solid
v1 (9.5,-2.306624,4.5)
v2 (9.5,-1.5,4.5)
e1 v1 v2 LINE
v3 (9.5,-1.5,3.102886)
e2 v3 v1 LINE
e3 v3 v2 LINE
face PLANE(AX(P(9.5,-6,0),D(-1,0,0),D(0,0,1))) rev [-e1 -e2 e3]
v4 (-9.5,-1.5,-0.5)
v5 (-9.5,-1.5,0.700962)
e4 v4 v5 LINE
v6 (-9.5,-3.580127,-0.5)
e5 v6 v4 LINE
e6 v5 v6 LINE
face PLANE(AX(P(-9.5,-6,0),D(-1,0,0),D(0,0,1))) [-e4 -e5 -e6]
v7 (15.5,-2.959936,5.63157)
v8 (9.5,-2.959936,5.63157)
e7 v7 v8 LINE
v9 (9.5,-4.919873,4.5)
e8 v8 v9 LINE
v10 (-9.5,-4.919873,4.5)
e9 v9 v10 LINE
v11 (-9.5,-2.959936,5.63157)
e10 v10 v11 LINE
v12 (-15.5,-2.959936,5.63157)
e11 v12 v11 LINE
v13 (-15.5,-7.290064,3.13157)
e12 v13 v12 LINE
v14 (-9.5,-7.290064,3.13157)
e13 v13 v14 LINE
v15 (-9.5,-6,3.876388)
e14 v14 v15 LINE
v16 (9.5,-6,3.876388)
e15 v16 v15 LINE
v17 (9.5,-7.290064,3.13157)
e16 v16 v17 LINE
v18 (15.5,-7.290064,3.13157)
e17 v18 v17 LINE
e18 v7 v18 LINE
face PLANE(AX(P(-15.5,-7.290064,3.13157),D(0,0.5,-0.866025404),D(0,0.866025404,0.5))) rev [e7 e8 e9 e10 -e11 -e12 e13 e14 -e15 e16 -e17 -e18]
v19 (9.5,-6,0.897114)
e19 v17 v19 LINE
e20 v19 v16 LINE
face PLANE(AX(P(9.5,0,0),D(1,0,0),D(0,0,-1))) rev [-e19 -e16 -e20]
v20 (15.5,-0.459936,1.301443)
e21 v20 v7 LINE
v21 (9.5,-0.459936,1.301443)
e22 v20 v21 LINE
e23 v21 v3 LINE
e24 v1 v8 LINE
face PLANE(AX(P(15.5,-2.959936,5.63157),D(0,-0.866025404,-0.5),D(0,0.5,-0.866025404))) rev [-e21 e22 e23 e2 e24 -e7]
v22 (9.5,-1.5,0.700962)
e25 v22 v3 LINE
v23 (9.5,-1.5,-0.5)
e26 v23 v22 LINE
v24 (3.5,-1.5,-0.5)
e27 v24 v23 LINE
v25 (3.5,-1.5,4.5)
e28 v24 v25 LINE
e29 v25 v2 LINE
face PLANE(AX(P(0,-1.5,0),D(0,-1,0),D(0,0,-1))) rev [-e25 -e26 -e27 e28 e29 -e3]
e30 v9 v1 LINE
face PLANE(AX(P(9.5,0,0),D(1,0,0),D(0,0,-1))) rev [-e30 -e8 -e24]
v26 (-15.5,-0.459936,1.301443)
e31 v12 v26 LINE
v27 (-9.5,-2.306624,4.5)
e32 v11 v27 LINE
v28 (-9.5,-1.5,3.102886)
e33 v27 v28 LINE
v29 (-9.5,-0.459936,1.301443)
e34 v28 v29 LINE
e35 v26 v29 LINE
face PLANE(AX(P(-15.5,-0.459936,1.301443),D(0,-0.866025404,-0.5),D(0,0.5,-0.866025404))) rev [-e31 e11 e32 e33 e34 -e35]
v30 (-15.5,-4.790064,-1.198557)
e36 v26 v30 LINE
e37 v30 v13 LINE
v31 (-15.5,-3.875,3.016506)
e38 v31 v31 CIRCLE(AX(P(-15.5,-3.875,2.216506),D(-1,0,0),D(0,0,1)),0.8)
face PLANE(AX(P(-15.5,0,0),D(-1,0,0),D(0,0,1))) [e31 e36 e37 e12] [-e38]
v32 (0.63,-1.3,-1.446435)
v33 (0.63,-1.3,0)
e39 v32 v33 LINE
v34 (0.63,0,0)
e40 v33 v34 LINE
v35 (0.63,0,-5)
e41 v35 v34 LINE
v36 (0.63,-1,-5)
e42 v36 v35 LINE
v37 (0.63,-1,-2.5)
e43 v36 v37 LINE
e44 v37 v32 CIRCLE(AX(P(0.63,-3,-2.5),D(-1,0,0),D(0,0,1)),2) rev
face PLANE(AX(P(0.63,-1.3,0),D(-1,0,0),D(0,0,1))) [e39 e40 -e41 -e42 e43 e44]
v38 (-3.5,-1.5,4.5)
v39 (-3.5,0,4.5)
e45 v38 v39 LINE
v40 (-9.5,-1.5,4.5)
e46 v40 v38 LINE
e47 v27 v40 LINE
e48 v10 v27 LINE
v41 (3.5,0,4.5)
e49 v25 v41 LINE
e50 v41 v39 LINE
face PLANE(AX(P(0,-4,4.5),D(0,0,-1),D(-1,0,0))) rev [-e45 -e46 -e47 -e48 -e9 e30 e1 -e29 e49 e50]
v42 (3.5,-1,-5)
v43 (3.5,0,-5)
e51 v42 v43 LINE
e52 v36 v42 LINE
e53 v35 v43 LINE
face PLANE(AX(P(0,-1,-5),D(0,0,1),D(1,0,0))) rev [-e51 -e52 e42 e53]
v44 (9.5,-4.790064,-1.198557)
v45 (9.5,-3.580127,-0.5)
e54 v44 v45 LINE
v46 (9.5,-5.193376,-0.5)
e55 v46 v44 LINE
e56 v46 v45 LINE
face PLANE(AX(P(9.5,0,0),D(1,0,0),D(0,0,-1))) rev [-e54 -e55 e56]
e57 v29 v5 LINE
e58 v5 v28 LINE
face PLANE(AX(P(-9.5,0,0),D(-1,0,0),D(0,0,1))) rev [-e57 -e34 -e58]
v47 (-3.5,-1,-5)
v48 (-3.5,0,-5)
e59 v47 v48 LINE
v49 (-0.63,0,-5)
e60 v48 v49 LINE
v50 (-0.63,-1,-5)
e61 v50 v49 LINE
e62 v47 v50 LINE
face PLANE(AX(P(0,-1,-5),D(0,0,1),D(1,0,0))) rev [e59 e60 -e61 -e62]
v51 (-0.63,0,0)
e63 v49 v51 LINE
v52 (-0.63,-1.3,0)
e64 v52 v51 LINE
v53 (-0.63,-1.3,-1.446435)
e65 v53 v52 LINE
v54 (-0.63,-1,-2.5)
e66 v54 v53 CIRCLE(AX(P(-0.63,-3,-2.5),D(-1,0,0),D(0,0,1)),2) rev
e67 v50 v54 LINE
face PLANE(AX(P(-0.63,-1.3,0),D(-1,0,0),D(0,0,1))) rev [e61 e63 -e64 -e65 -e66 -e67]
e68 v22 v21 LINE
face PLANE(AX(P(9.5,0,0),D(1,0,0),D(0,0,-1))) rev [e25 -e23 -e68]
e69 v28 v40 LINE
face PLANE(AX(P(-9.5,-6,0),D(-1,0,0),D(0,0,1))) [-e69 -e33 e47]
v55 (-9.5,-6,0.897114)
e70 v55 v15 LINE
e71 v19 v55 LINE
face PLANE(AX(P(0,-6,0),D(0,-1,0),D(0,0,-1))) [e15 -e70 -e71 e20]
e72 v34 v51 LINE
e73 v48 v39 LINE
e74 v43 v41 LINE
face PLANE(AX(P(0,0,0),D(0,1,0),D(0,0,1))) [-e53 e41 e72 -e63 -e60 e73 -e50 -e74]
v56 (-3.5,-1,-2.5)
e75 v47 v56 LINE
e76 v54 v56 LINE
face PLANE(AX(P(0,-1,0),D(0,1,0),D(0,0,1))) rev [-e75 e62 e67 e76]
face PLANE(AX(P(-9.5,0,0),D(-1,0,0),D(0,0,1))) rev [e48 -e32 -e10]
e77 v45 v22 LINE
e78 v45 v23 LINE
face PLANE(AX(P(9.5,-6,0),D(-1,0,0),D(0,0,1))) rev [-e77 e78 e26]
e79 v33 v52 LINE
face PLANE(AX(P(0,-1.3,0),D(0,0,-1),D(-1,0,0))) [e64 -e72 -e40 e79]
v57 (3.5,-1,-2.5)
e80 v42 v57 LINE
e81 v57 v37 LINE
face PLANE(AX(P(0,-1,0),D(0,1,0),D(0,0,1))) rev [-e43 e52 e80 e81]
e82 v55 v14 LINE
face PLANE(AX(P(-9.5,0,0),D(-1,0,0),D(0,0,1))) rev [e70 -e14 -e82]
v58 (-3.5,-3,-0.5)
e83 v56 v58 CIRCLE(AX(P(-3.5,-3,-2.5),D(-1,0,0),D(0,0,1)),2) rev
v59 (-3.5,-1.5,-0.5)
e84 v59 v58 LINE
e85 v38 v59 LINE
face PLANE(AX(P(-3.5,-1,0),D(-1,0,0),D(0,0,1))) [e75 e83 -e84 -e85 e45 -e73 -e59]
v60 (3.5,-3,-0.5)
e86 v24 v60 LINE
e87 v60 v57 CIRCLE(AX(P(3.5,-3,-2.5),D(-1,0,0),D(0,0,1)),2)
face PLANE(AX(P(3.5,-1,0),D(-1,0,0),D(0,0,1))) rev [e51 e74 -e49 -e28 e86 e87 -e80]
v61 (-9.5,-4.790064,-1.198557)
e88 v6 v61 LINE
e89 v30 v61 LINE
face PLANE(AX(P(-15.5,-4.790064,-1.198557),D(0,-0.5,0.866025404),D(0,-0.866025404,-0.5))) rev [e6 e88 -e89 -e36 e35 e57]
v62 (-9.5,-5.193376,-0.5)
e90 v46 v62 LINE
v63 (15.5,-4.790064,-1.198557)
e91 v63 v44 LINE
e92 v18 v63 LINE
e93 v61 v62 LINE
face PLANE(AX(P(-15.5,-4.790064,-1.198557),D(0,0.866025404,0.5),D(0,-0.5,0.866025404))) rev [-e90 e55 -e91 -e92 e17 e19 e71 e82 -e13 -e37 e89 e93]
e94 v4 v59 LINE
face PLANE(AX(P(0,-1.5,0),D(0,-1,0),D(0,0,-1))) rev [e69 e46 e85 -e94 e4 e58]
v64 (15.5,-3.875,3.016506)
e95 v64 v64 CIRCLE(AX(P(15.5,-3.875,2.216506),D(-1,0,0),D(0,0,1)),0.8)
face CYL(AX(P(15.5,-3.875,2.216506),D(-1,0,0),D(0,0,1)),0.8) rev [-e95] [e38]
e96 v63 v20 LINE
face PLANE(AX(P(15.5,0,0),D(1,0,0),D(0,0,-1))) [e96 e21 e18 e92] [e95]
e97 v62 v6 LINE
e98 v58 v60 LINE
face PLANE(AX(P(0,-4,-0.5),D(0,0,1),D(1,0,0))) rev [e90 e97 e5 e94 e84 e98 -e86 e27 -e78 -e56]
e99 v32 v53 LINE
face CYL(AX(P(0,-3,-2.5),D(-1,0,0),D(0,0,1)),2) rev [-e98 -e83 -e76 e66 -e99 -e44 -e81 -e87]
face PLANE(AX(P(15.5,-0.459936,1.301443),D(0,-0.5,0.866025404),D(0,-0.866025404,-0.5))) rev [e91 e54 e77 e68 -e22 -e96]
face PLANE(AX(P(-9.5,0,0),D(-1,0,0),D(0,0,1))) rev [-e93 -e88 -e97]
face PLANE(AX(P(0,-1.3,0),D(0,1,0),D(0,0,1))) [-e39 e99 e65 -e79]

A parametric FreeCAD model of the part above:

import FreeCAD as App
import Part
import Sketcher

V = App.Vector
Q = App.Units.Quantity


def edges_at(feature, points):
    """Names of the edges that pass closest to the given points."""
    edges = feature.Shape.Edges
    near = lambda p: min(range(len(edges)), key=lambda i: edges[i].distToShape(Part.Vertex(*p))[0])
    return sorted({f"Edge{near(p) + 1}" for p in points})


def add_polygon(sketch, points):
    """Adds a closed chain of lines whose ends are joined by coincident constraints."""
    first, n = sketch.GeometryCount, len(points)
    for a, b in zip(points, points[1:] + points[:1]):
        sketch.addGeometry(Part.LineSegment(App.Vector(*a, 0), App.Vector(*b, 0)), False)
    for i in range(n):
        sketch.addConstraint(Sketcher.Constraint("Coincident", first + i, 2, first + (i + 1) % n, 1))

doc = App.newDocument("Part")
body = doc.addObject("PartDesign::Body", "Body")

sketch1 = doc.addObject("Sketcher::SketchObject", "Sketch")
body.addObject(sketch1)
sketch1.AttachmentSupport = (doc.XZ_Plane, [""])
sketch1.MapMode = "FlatFace"
add_polygon(sketch1, [(-3.5, -5), (-3.5, -0.5), (3.5, -0.5), (3.5, -5)])
sketch1.addConstraint(Sketcher.Constraint("Vertical", 0))
sketch1.addConstraint(Sketcher.Constraint("Horizontal", 1))
sketch1.addConstraint(Sketcher.Constraint("Vertical", 2))
sketch1.addConstraint(Sketcher.Constraint("Horizontal", 3))
sketch1.addConstraint(Sketcher.Constraint("DistanceX", 1, 1, 1, 2, Q("7 mm")))
sketch1.addConstraint(Sketcher.Constraint("DistanceY", 0, 1, 0, 2, Q("4.5 mm")))
sketch1.addConstraint(Sketcher.Constraint("DistanceY", 2, 2, -1, 1, Q("5 mm")))
sketch1.addConstraint(Sketcher.Constraint("DistanceX", 0, 2, -1, 1, Q("3.5 mm")))
pad1 = doc.addObject("PartDesign::Pad", "Pad")
body.addObject(pad1)
pad1.Profile = sketch1
pad1.Length = 1

sketch2 = doc.addObject("Sketcher::SketchObject", "Sketch001")
body.addObject(sketch2)
sketch2.AttachmentSupport = (doc.XZ_Plane, [""])
sketch2.MapMode = "FlatFace"
add_polygon(sketch2, [(-3.5, -0.5), (-3.5, 4.5), (3.5, 4.5), (3.5, -0.5)])
sketch2.addConstraint(Sketcher.Constraint("Vertical", 0))
sketch2.addConstraint(Sketcher.Constraint("Horizontal", 1))
sketch2.addConstraint(Sketcher.Constraint("Vertical", 2))
sketch2.addConstraint(Sketcher.Constraint("Horizontal", 3))
sketch2.addConstraint(Sketcher.Constraint("DistanceX", 1, 1, 1, 2, Q("7 mm")))
sketch2.addConstraint(Sketcher.Constraint("DistanceY", 0, 1, 0, 2, Q("5 mm")))
sketch2.addConstraint(Sketcher.Constraint("DistanceX", 0, 2, -1, 1, Q("3.5 mm")))
sketch2.addConstraint(Sketcher.Constraint("DistanceY", -1, 1, 0, 2, Q("4.5 mm")))
pad2 = doc.addObject("PartDesign::Pad", "Pad001")
body.addObject(pad2)
pad2.Profile = sketch2
pad2.Length = 4
doc.recompute()

fillet = doc.addObject("PartDesign::Fillet", "Fillet")
body.addObject(fillet)
fillet.Base = (pad2, edges_at(pad2, [(0, -1, -0.5)]))
fillet.Radius = 2

sketch3 = doc.addObject("Sketcher::SketchObject", "Sketch002")
body.addObject(sketch3)
sketch3.AttachmentSupport = (doc.XZ_Plane, [""])
sketch3.MapMode = "FlatFace"
sketch3.AttachmentOffset = App.Placement(V(0, 0, 4), App.Rotation())
add_polygon(sketch3, [(-9.5, 4.5), (-9.5, -0.5), (9.5, -0.5), (9.5, 4.5)])
sketch3.addConstraint(Sketcher.Constraint("Vertical", 0))
sketch3.addConstraint(Sketcher.Constraint("Horizontal", 1))
sketch3.addConstraint(Sketcher.Constraint("Vertical", 2))
sketch3.addConstraint(Sketcher.Constraint("Horizontal", 3))
sketch3.addConstraint(Sketcher.Constraint("DistanceX", 1, 1, 1, 2, Q("19 mm")))
sketch3.addConstraint(Sketcher.Constraint("DistanceY", 0, 2, 0, 1, Q("5 mm")))
sketch3.addConstraint(Sketcher.Constraint("DistanceX", 0, 2, -1, 1, Q("9.5 mm")))
sketch3.addConstraint(Sketcher.Constraint("DistanceY", 0, 2, -1, 1, Q("0.5 mm")))
pad3 = doc.addObject("PartDesign::Pad", "Pad002")
body.addObject(pad3)
pad3.Profile = sketch3
pad3.Length = 2

sketch4 = doc.addObject("Sketcher::SketchObject", "Sketch003")
body.addObject(sketch4)
sketch4.AttachmentSupport = (doc.XZ_Plane, [""])
sketch4.MapMode = "FlatFace"
sketch4.AttachmentOffset = App.Placement(V(0, 0, 4), App.Rotation())
add_polygon(sketch4, [(-9.5, 4.5), (-9.5, -0.5), (9.5, -0.5), (9.5, 4.5)])
sketch4.addConstraint(Sketcher.Constraint("Vertical", 0))
sketch4.addConstraint(Sketcher.Constraint("Horizontal", 1))
sketch4.addConstraint(Sketcher.Constraint("Vertical", 2))
sketch4.addConstraint(Sketcher.Constraint("Horizontal", 3))
sketch4.addConstraint(Sketcher.Constraint("DistanceX", 1, 1, 1, 2, Q("19 mm")))
sketch4.addConstraint(Sketcher.Constraint("DistanceY", 0, 2, 0, 1, Q("5 mm")))
sketch4.addConstraint(Sketcher.Constraint("DistanceX", 0, 2, -1, 1, Q("9.5 mm")))
sketch4.addConstraint(Sketcher.Constraint("DistanceY", 0, 2, -1, 1, Q("0.5 mm")))
pad4 = doc.addObject("PartDesign::Pad", "Pad003")
body.addObject(pad4)
pad4.Profile = sketch4
pad4.Length = 2.5
pad4.Reversed = True

sketch5 = doc.addObject("Sketcher::SketchObject", "Sketch004")
body.addObject(sketch5)
sketch5.AttachmentSupport = (doc.XZ_Plane, [""])
sketch5.MapMode = "FlatFace"
add_polygon(sketch5, [(-0.63, -5), (-0.63, 0), (0.63, 0), (0.63, -5)])
sketch5.addConstraint(Sketcher.Constraint("Vertical", 0))
sketch5.addConstraint(Sketcher.Constraint("Horizontal", 1))
sketch5.addConstraint(Sketcher.Constraint("Vertical", 2))
sketch5.addConstraint(Sketcher.Constraint("Horizontal", 3))
sketch5.addConstraint(Sketcher.Constraint("Symmetric", 0, 2, 1, 2, -1, 1))
sketch5.addConstraint(Sketcher.Constraint("DistanceY", 0, 1, 0, 2, Q("5 mm")))
sketch5.addConstraint(Sketcher.Constraint("DistanceX", 1, 1, 1, 2, Q("1.26 mm")))
pocket1 = doc.addObject("PartDesign::Pocket", "Pocket")
body.addObject(pocket1)
pocket1.Profile = sketch5
pocket1.Length = 1.3
pocket1.Reversed = True

sketch6 = doc.addObject("Sketcher::SketchObject", "Sketch005")
body.addObject(sketch6)
sketch6.AttachmentSupport = (doc.YZ_Plane, [""])
sketch6.MapMode = "FlatFace"
sketch6.AttachmentOffset = App.Placement(V(0, 0, -9.5), App.Rotation())
add_polygon(sketch6, [(-0.459936, 1.301443), (-4.790064, -1.198557), (-7.290064, 3.13157), (-2.959936, 5.63157)])
sketch6.addConstraint(Sketcher.Constraint("Perpendicular", 0, 1))
sketch6.addConstraint(Sketcher.Constraint("Perpendicular", 1, 2))
sketch6.addConstraint(Sketcher.Constraint("Perpendicular", 2, 3))
sketch6.addConstraint(Sketcher.Constraint("Equal", 0, 1))
sketch6.addConstraint(Sketcher.Constraint("Angle", 0, Q("-150 deg")))
sketch6.addConstraint(Sketcher.Constraint("Distance", 0, Q("5 mm")))
sketch6.addConstraint(Sketcher.Constraint("DistanceY", -1, 1, 1, 2, Q("3.13157 mm")))
sketch6.addConstraint(Sketcher.Constraint("DistanceX", 0, 2, -1, 1, Q("4.790064 mm")))
pad5 = doc.addObject("PartDesign::Pad", "Pad004")
body.addObject(pad5)
pad5.Profile = sketch6
pad5.Length = 6
pad5.Reversed = True

sketch7 = doc.addObject("Sketcher::SketchObject", "Sketch006")
body.addObject(sketch7)
sketch7.AttachmentSupport = (doc.YZ_Plane, [""])
sketch7.MapMode = "FlatFace"
sketch7.AttachmentOffset = App.Placement(V(0, 0, 9.5), App.Rotation())
add_polygon(sketch7, [(-0.459936, 1.301443), (-2.959936, 5.63157), (-7.290064, 3.13157), (-4.790064, -1.198557)])
sketch7.addConstraint(Sketcher.Constraint("Perpendicular", 0, 1))
sketch7.addConstraint(Sketcher.Constraint("Perpendicular", 1, 2))
sketch7.addConstraint(Sketcher.Constraint("Perpendicular", 2, 3))
sketch7.addConstraint(Sketcher.Constraint("Equal", 0, 1))
sketch7.addConstraint(Sketcher.Constraint("Angle", 0, Q("120 deg")))
sketch7.addConstraint(Sketcher.Constraint("Distance", 0, Q("5 mm")))
sketch7.addConstraint(Sketcher.Constraint("DistanceY", -1, 1, 0, 2, Q("5.63157 mm")))
sketch7.addConstraint(Sketcher.Constraint("DistanceX", 0, 2, -1, 1, Q("2.959936 mm")))
pad6 = doc.addObject("PartDesign::Pad", "Pad005")
body.addObject(pad6)
pad6.Profile = sketch7
pad6.Length = 6

sketch8 = doc.addObject("Sketcher::SketchObject", "Sketch007")
body.addObject(sketch8)
sketch8.AttachmentSupport = (doc.YZ_Plane, [""])
sketch8.MapMode = "FlatFace"
sketch8.AttachmentOffset = App.Placement(V(0, 0, -15.5), App.Rotation())
sketch8.addGeometry(Part.Circle(V(-3.875, 2.216506, 0), V(0, 0, 1), 0.8), False)
sketch8.addConstraint(Sketcher.Constraint("Diameter", 0, Q("1.6 mm")))
sketch8.addConstraint(Sketcher.Constraint("DistanceX", 0, 3, -1, 1, Q("3.875 mm")))
sketch8.addConstraint(Sketcher.Constraint("DistanceY", -1, 1, 0, 3, Q("2.216506 mm")))
pocket2 = doc.addObject("PartDesign::Pocket", "Pocket001")
body.addObject(pocket2)
pocket2.Profile = sketch8
pocket2.Type = "ThroughAll"
pocket2.Reversed = True

sketch9 = doc.addObject("Sketcher::SketchObject", "Sketch008")
body.addObject(sketch9)
sketch9.AttachmentSupport = (doc.YZ_Plane, [""])
sketch9.MapMode = "FlatFace"
sketch9.AttachmentOffset = App.Placement(V(0, 0, -9.5), App.Rotation())
add_polygon(sketch9, [(-5.193376, -0.5), (-6, -0.5), (-6, 0.897114)])
add_polygon(sketch9, [(-4.919873, 4.5), (-6, 3.876388), (-6, 4.5)])
sketch9.addConstraint(Sketcher.Constraint("Horizontal", 0))
sketch9.addConstraint(Sketcher.Constraint("Vertical", 1))
sketch9.addConstraint(Sketcher.Constraint("Vertical", 4))
sketch9.addConstraint(Sketcher.Constraint("Horizontal", 5))
sketch9.addConstraint(Sketcher.Constraint("Perpendicular", 2, 3))
sketch9.addConstraint(Sketcher.Constraint("Vertical", 1, 2, 3, 2))
sketch9.addConstraint(Sketcher.Constraint("Angle", 2, Q("-60 deg")))
sketch9.addConstraint(Sketcher.Constraint("DistanceX", 0, 2, -1, 1, Q("6 mm")))
sketch9.addConstraint(Sketcher.Constraint("DistanceY", 0, 2, 4, 2, Q("5 mm")))
sketch9.addConstraint(Sketcher.Constraint("DistanceY", 0, 2, -1, 1, Q("0.5 mm")))
sketch9.addConstraint(Sketcher.Constraint("DistanceY", 4, 1, 4, 2, Q("0.623612 mm")))
sketch9.addConstraint(Sketcher.Constraint("Distance", 2, Q("1.613249 mm")))
pocket3 = doc.addObject("PartDesign::Pocket", "Pocket002")
body.addObject(pocket3)
pocket3.Profile = sketch9
pocket3.Type = "ThroughAll"
pocket3.Reversed = True

doc.recompute()
